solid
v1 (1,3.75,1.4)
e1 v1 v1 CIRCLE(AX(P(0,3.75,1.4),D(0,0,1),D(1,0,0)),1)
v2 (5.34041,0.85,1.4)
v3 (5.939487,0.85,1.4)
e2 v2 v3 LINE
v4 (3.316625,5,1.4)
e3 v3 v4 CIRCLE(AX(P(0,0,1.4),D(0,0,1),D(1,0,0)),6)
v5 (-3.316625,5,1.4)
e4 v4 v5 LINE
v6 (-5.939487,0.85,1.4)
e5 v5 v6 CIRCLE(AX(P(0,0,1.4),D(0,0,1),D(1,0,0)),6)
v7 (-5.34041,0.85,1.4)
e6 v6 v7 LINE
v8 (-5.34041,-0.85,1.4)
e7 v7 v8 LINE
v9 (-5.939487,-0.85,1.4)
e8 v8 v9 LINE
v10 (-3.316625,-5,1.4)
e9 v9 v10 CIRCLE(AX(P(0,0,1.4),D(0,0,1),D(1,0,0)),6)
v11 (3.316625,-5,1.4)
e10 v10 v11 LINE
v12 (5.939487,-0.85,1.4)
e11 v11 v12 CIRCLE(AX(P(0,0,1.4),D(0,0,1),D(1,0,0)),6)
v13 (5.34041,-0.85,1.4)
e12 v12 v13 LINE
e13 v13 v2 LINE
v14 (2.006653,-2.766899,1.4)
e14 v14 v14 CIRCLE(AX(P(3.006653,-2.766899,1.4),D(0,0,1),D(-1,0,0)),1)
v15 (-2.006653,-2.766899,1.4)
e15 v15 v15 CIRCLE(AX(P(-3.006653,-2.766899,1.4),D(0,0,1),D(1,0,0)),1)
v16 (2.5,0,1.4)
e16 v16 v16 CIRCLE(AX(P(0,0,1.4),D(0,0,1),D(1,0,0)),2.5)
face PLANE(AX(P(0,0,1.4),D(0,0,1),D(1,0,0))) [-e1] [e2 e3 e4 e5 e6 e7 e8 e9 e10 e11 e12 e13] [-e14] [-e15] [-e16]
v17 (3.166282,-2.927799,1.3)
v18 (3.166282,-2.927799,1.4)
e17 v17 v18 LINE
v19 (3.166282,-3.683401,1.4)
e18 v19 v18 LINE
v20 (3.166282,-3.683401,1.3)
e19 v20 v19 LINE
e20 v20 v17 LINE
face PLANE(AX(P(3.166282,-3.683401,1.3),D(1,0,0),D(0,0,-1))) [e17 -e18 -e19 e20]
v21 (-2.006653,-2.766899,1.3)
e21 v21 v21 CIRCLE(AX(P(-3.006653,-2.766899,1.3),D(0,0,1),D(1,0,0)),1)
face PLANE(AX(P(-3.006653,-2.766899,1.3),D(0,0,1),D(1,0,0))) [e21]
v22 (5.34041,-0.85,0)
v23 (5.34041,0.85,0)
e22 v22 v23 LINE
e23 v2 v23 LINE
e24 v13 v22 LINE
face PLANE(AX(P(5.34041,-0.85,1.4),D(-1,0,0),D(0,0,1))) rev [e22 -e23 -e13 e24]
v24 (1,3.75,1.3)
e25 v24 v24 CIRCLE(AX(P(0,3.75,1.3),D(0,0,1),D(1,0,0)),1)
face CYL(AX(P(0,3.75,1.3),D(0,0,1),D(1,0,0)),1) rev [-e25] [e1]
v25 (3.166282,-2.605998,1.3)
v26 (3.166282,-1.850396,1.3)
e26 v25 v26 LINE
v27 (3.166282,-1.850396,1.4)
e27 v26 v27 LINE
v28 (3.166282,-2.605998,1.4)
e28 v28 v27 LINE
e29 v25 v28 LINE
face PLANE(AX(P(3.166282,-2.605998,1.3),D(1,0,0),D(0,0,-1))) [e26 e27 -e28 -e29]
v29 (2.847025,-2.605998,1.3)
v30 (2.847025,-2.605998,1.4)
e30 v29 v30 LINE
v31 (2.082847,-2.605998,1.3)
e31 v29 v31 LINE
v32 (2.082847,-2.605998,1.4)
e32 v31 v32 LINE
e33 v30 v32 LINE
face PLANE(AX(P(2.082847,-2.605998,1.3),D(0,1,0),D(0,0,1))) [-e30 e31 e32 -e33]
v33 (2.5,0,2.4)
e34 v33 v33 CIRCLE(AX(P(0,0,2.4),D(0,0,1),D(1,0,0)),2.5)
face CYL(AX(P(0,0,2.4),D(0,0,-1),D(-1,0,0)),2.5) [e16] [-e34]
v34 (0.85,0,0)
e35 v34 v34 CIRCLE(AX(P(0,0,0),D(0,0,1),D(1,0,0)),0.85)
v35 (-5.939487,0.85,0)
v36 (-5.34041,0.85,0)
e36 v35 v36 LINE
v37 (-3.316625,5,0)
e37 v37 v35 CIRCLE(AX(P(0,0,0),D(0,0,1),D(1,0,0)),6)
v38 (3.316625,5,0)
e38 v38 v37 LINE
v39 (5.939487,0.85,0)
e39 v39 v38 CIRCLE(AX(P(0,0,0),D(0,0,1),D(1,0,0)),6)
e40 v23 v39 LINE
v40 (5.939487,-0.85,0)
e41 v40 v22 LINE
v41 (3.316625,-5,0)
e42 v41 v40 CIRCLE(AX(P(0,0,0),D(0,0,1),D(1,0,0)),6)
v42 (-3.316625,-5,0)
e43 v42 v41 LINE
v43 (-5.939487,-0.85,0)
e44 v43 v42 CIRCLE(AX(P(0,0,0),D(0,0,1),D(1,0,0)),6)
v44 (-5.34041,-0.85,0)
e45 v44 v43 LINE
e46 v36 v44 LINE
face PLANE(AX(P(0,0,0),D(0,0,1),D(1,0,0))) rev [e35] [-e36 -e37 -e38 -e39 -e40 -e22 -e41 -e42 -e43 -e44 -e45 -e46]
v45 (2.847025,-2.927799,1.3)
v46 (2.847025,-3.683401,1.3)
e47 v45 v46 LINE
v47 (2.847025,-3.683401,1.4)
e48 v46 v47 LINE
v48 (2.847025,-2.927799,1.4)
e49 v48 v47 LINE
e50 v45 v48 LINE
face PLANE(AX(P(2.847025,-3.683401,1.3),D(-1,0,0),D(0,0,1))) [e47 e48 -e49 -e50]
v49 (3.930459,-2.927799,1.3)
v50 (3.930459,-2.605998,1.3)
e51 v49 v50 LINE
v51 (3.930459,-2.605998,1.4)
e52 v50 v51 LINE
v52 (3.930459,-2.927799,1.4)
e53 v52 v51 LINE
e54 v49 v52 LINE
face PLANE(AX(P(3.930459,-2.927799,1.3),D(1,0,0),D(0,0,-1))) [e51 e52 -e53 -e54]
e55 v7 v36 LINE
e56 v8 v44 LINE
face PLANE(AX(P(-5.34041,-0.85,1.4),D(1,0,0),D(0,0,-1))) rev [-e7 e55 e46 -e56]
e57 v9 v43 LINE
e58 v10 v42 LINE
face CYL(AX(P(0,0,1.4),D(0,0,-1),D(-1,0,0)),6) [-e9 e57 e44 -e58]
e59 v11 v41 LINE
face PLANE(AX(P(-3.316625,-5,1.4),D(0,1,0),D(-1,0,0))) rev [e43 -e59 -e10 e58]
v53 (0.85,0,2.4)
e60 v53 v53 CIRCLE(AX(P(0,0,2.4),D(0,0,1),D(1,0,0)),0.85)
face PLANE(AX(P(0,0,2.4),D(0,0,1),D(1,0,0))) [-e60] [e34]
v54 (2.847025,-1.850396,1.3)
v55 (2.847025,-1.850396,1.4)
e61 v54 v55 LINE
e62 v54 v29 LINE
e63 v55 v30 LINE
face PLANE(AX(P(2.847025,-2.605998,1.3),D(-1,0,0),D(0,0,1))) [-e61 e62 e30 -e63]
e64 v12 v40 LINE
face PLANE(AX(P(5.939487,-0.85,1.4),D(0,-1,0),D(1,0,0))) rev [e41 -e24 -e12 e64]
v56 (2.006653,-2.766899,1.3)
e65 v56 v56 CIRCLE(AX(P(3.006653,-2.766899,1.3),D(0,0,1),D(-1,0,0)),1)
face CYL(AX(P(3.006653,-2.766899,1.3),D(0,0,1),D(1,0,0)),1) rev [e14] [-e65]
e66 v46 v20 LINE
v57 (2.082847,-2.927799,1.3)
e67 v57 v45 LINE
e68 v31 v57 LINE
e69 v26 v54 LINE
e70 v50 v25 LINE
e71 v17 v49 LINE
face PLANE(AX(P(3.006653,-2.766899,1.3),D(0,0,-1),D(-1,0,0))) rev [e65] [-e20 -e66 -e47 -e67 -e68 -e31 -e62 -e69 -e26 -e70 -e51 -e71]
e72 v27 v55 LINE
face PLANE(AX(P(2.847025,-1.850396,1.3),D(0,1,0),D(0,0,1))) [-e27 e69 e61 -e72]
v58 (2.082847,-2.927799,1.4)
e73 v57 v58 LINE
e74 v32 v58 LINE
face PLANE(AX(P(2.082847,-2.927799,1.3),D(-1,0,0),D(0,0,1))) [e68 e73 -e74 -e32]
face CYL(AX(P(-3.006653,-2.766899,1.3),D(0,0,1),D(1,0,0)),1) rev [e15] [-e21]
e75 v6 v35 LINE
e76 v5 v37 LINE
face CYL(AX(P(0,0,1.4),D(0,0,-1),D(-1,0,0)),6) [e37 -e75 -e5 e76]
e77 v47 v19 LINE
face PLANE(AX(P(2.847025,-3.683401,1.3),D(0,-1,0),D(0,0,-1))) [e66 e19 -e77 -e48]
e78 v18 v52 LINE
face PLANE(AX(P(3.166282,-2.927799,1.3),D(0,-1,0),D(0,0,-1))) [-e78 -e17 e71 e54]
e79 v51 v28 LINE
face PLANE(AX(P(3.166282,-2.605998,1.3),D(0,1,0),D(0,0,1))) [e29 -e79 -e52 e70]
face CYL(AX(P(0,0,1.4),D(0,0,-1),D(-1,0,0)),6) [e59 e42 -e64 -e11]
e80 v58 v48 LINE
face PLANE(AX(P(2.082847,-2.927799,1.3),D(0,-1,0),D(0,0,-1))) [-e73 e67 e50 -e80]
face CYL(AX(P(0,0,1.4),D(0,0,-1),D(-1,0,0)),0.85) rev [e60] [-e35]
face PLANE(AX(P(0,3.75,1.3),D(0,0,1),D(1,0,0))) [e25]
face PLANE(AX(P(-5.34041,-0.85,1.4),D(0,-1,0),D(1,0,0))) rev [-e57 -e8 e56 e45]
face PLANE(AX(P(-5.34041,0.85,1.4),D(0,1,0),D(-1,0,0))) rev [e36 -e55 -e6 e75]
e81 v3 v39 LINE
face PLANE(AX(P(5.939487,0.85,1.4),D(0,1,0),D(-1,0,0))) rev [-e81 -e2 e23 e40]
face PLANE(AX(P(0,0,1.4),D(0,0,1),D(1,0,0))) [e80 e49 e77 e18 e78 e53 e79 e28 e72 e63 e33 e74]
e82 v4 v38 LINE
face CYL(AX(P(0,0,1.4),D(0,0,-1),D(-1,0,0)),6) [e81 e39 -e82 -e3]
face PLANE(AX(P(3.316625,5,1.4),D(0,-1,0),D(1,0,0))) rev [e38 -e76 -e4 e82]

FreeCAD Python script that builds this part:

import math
import FreeCAD as App
import Part
import Sketcher
from FreeCAD import Vector
Q = App.Units.Quantity

doc = App.newDocument("Part")
body = doc.addObject("PartDesign::Body", "Body")

# Sketch on XY plane
sketch1 = body.newObject("Sketcher::SketchObject", "Sketch")
sketch1.AttachmentSupport = (doc.getObject("XY_Plane"), [""])
sketch1.MapMode = "FlatFace"
sketch1.addGeometry([
    Part.LineSegment(Vector(-5.9, 0.8, 0), Vector(-5.3, 0.8, 0)),  # 0
    Part.LineSegment(Vector(-5.3, 0.8, 0), Vector(-5.3, -0.8, 0)),  # 1
    Part.LineSegment(Vector(-5.3, -0.8, 0), Vector(-5.9, -0.8, 0)),  # 2
    Part.ArcOfCircle(Part.Circle(Vector(0, 0, 0), Vector(0, 0, 1), 6), math.radians(-172), math.radians(-124)),  # 3
    Part.LineSegment(Vector(-3.3, -5, 0), Vector(3.3, -5, 0)),  # 4
    Part.ArcOfCircle(Part.Circle(Vector(0, 0, 0), Vector(0, 0, 1), 6), math.radians(-56), math.radians(-8)),  # 5
    Part.LineSegment(Vector(5.9, -0.8, 0), Vector(5.3, -0.8, 0)),  # 6
    Part.LineSegment(Vector(5.3, -0.8, 0), Vector(5.3, 0.8, 0)),  # 7
    Part.LineSegment(Vector(5.3, 0.8, 0), Vector(5.9, 0.8, 0)),  # 8
    Part.ArcOfCircle(Part.Circle(Vector(0, 0, 0), Vector(0, 0, 1), 6), math.radians(8), math.radians(56)),  # 9
    Part.LineSegment(Vector(3.3, 5, 0), Vector(-3.3, 5, 0)),  # 10
    Part.ArcOfCircle(Part.Circle(Vector(0, 0, 0), Vector(0, 0, 1), 6), math.radians(124), math.radians(172)),  # 11
    Part.Circle(Vector(0, 0, 0), Vector(0, 0, 1), 0.8),  # 12
], False)
sketch1.addConstraint([
    Sketcher.Constraint("Coincident", 0, 2, 1, 1),
    Sketcher.Constraint("Coincident", 1, 2, 2, 1),
    Sketcher.Constraint("Coincident", 2, 2, 3, 1),
    Sketcher.Constraint("Coincident", 3, 2, 4, 1),
    Sketcher.Constraint("Coincident", 4, 2, 5, 1),
    Sketcher.Constraint("Coincident", 5, 2, 6, 1),
    Sketcher.Constraint("Coincident", 6, 2, 7, 1),
    Sketcher.Constraint("Coincident", 7, 2, 8, 1),
    Sketcher.Constraint("Coincident", 8, 2, 9, 1),
    Sketcher.Constraint("Coincident", 9, 2, 10, 1),
    Sketcher.Constraint("Coincident", 10, 2, 11, 1),
    Sketcher.Constraint("Coincident", 11, 2, 0, 1),
    Sketcher.Constraint("Horizontal", 0),
    Sketcher.Constraint("Vertical", 1),
    Sketcher.Constraint("Horizontal", 2),
    Sketcher.Constraint("Horizontal", 4),
    Sketcher.Constraint("Horizontal", 6),
    Sketcher.Constraint("Vertical", 7),
    Sketcher.Constraint("Horizontal", 8),
    Sketcher.Constraint("Horizontal", 10),
    Sketcher.Constraint("Coincident", 3, 3, -1, 1),
    Sketcher.Constraint("Coincident", 5, 3, -1, 1),
    Sketcher.Constraint("Coincident", 9, 3, -1, 1),
    Sketcher.Constraint("Coincident", 11, 3, -1, 1),
    Sketcher.Constraint("Coincident", 12, 3, -1, 1),
    Sketcher.Constraint("Equal", 3, 5),
    Sketcher.Constraint("Equal", 5, 9),
    Sketcher.Constraint("Equal", 9, 11),
    Sketcher.Constraint("Symmetric", 0, 2, 6, 2, -1, 1),
    Sketcher.Constraint("Horizontal", 2, 2, 5, 2),
    Sketcher.Constraint("Horizontal", 0, 2, 7, 2),
    Sketcher.Constraint("Vertical", 4, 2, 9, 2),
    Sketcher.Constraint("Radius", 3, Q("6 mm")),
    Sketcher.Constraint("Diameter", 12, Q("1.7 mm")),
    Sketcher.Constraint("DistanceY", 1, 2, 1, 1, Q("1.7 mm")),
    Sketcher.Constraint("DistanceY", 3, 2, -1, 1, Q("5 mm")),
    Sketcher.Constraint("DistanceX", 0, 1, 0, 2, Q("0.599076 mm")),
])
pad1 = body.newObject("PartDesign::Pad", "Pad")
pad1.Profile = sketch1
pad1.Length = 1.4

# Sketch on XY plane
sketch2 = body.newObject("Sketcher::SketchObject", "Sketch001")
sketch2.AttachmentSupport = (doc.getObject("XY_Plane"), [""])
sketch2.MapMode = "FlatFace"
sketch2.AttachmentOffset = App.Placement(Vector(0, 0, 1.4), App.Rotation())
sketch2.addGeometry([
    Part.Circle(Vector(0, 0, 0), Vector(0, 0, 1), 2.5),
    Part.Circle(Vector(0, 0, 0), Vector(0, 0, 1), 0.8),
], False)
sketch2.addConstraint([
    Sketcher.Constraint("Coincident", 0, 3, -1, 1),
    Sketcher.Constraint("Coincident", 1, 3, -1, 1),
    Sketcher.Constraint("Diameter", 0, Q("5 mm")),
    Sketcher.Constraint("Diameter", 1, Q("1.7 mm")),
])
pad2 = body.newObject("PartDesign::Pad", "Pad001")
pad2.Profile = sketch2
pad2.Length = 1

# Sketch on XY plane
sketch3 = body.newObject("Sketcher::SketchObject", "Sketch002")
sketch3.AttachmentSupport = (doc.getObject("XY_Plane"), [""])
sketch3.MapMode = "FlatFace"
sketch3.AttachmentOffset = App.Placement(Vector(0, 0, 1.4), App.Rotation())
sketch3.addGeometry([
    Part.Circle(Vector(0, 3.75, 0), Vector(0, 0, 1), 1),  # 0
    Part.Circle(Vector(-3.01, -2.77, 0), Vector(0, 0, 1), 1),  # 1
    Part.Circle(Vector(3.01, -2.77, 0), Vector(0, 0, 1), 1),  # 2
    Part.LineSegment(Vector(3.17, -1.85, 0), Vector(3.17, -2.61, 0)),  # 3
    Part.LineSegment(Vector(3.17, -2.61, 0), Vector(3.93, -2.61, 0)),  # 4
    Part.LineSegment(Vector(3.93, -2.61, 0), Vector(3.93, -2.93, 0)),  # 5
    Part.LineSegment(Vector(3.93, -2.93, 0), Vector(3.17, -2.93, 0)),  # 6
    Part.LineSegment(Vector(3.17, -2.93, 0), Vector(3.17, -3.68, 0)),  # 7
    Part.LineSegment(Vector(3.17, -3.68, 0), Vector(2.85, -3.68, 0)),  # 8
    Part.LineSegment(Vector(2.85, -3.68, 0), Vector(2.85, -2.93, 0)),  # 9
    Part.LineSegment(Vector(2.85, -2.93, 0), Vector(2.08, -2.93, 0)),  # 10
    Part.LineSegment(Vector(2.08, -2.93, 0), Vector(2.08, -2.61, 0)),  # 11
    Part.LineSegment(Vector(2.08, -2.61, 0), Vector(2.85, -2.61, 0)),  # 12
    Part.LineSegment(Vector(2.85, -2.61, 0), Vector(2.85, -1.85, 0)),  # 13
    Part.LineSegment(Vector(2.85, -1.85, 0), Vector(3.17, -1.85, 0)),  # 14
], False)
sketch3.addConstraint([
    Sketcher.Constraint("Coincident", 3, 2, 4, 1),
    Sketcher.Constraint("Coincident", 4, 2, 5, 1),
    Sketcher.Constraint("Coincident", 5, 2, 6, 1),
    Sketcher.Constraint("Coincident", 6, 2, 7, 1),
    Sketcher.Constraint("Coincident", 7, 2, 8, 1),
    Sketcher.Constraint("Coincident", 8, 2, 9, 1),
    Sketcher.Constraint("Coincident", 9, 2, 10, 1),
    Sketcher.Constraint("Coincident", 10, 2, 11, 1),
    Sketcher.Constraint("Coincident", 11, 2, 12, 1),
    Sketcher.Constraint("Coincident", 12, 2, 13, 1),
    Sketcher.Constraint("Coincident", 13, 2, 14, 1),
    Sketcher.Constraint("Coincident", 14, 2, 3, 1),
    Sketcher.Constraint("Vertical", 3),
    Sketcher.Constraint("Horizontal", 4),
    Sketcher.Constraint("Vertical", 5),
    Sketcher.Constraint("Horizontal", 6),
    Sketcher.Constraint("Vertical", 7),
    Sketcher.Constraint("Horizontal", 8),
    Sketcher.Constraint("Vertical", 9),
    Sketcher.Constraint("Horizontal", 10),
    Sketcher.Constraint("Vertical", 11),
    Sketcher.Constraint("Horizontal", 12),
    Sketcher.Constraint("Vertical", 13),
    Sketcher.Constraint("Horizontal", 14),
    Sketcher.Constraint("Equal", 0, 1),
    Sketcher.Constraint("Equal", 1, 2),
    Sketcher.Constraint("Symmetric", 1, 3, 2, 3, -2),
    Sketcher.Constraint("PointOnObject", 0, 3, -2),
    Sketcher.Constraint("Horizontal", 6, 2, 9, 2),
    Sketcher.Constraint("Horizontal", 4, 2, 11, 2),
    Sketcher.Constraint("Vertical", 3, 2, 6, 2),
    Sketcher.Constraint("Vertical", 9, 2, 12, 2),
    Sketcher.Constraint("Equal", 6, 10),
    Sketcher.Constraint("Equal", 3, 7),
    Sketcher.Constraint("Diameter", 0, Q("2 mm")),
    Sketcher.Constraint("DistanceY", -1, 1, 0, 3, Q("3.75 mm")),
    Sketcher.Constraint("DistanceY", 5, 2, 5, 1, Q("0.321801 mm")),
    Sketcher.Constraint("DistanceY", 3, 2, -1, 1, Q("2.605998 mm")),
    Sketcher.Constraint("DistanceY", 1, 3, -1, 1, Q("2.766899 mm")),
    Sketcher.Constraint("DistanceY", 7, 2, -1, 1, Q("3.683401 mm")),
    Sketcher.Constraint("DistanceX", 4, 1, 4, 2, Q("0.764178 mm")),
    Sketcher.Constraint("DistanceX", 8, 2, 8, 1, Q("0.319257 mm")),
    Sketcher.Constraint("DistanceX", -1, 1, 3, 2, Q("3.166282 mm")),
    Sketcher.Constraint("DistanceX", 2, 3, 3, 2, Q("0.159628 mm")),
])
pocket1 = body.newObject("PartDesign::Pocket", "Pocket")
pocket1.Profile = sketch3
pocket1.Length = 0.1

doc.recompute()
